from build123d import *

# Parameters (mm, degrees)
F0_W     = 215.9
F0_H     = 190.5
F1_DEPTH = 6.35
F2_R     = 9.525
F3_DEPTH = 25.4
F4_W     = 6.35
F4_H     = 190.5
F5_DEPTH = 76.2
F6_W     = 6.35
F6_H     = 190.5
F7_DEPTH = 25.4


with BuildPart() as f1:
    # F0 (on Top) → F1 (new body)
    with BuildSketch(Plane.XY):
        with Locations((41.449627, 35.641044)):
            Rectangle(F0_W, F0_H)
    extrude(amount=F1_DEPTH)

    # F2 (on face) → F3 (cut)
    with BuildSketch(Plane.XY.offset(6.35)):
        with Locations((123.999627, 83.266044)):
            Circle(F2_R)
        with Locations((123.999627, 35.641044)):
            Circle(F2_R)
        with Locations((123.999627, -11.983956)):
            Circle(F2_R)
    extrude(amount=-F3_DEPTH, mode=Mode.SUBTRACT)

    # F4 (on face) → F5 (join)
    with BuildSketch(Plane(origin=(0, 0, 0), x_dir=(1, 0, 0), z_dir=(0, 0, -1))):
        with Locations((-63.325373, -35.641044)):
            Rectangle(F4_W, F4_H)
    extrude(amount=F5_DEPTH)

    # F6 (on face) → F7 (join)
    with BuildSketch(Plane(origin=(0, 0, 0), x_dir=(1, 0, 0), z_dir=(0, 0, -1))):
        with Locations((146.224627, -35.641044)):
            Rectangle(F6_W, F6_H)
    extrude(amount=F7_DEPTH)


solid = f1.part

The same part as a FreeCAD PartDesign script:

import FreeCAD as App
import Part
import Sketcher

V = App.Vector
Q = App.Units.Quantity


def add_polygon(sketch, points):
    """Adds a closed chain of lines whose ends are joined by coincident constraints."""
    first, n = sketch.GeometryCount, len(points)
    for a, b in zip(points, points[1:] + points[:1]):
        sketch.addGeometry(Part.LineSegment(App.Vector(*a, 0), App.Vector(*b, 0)), False)
    for i in range(n):
        sketch.addConstraint(Sketcher.Constraint("Coincident", first + i, 2, first + (i + 1) % n, 1))

doc = App.newDocument("Part")
body = doc.addObject("PartDesign::Body", "Body")

sketch1 = body.newObject("Sketcher::SketchObject", "Sketch")
sketch1.AttachmentSupport = (doc.getObject("XY_Plane"), [""])
sketch1.MapMode = "FlatFace"
add_polygon(sketch1, [(-67, 131), (-67, -60), (149, -60), (149, 131)])
sketch1.addConstraint(Sketcher.Constraint("Vertical", 0))
sketch1.addConstraint(Sketcher.Constraint("Horizontal", 1))
sketch1.addConstraint(Sketcher.Constraint("Vertical", 2))
sketch1.addConstraint(Sketcher.Constraint("Horizontal", 3))
sketch1.addConstraint(Sketcher.Constraint("DistanceX", 1, 1, 1, 2, Q("8.5 in")))
sketch1.addConstraint(Sketcher.Constraint("DistanceY", 0, 2, 0, 1, Q("7.5 in")))
sketch1.addConstraint(Sketcher.Constraint("DistanceX", 0, 2, -1, 1, 66.500373))
sketch1.addConstraint(Sketcher.Constraint("DistanceY", 0, 2, -1, 1, 59.608956))
pad1 = body.newObject("PartDesign::Pad", "Pad")
pad1.Profile = sketch1
pad1.Length = Q("0.25 in")

sketch2 = body.newObject("Sketcher::SketchObject", "Sketch001")
sketch2.AttachmentSupport = (doc.getObject("XY_Plane"), [""])
sketch2.MapMode = "FlatFace"
sketch2.AttachmentOffset = App.Placement(V(0, 0, 0.25 * 25.4), App.Rotation())
sketch2.addGeometry(Part.Circle(V(124, 83, 0), V(0, 0, 1), 10), False)
sketch2.addGeometry(Part.Circle(V(124, 36, 0), V(0, 0, 1), 10), False)
sketch2.addGeometry(Part.Circle(V(124, -12, 0), V(0, 0, 1), 10), False)
sketch2.addConstraint(Sketcher.Constraint("Equal", 0, 1))
sketch2.addConstraint(Sketcher.Constraint("Equal", 1, 2))
sketch2.addConstraint(Sketcher.Constraint("Vertical", 0, 3, 1, 3))
sketch2.addConstraint(Sketcher.Constraint("Vertical", 1, 3, 2, 3))
sketch2.addConstraint(Sketcher.Constraint("Diameter", 0, Q("0.75 in")))
sketch2.addConstraint(Sketcher.Constraint("DistanceY", 2, 3, 0, 3, Q("3.75 in")))
sketch2.addConstraint(Sketcher.Constraint("DistanceY", 1, 3, 0, 3, Q("1.875 in")))
sketch2.addConstraint(Sketcher.Constraint("DistanceX", -1, 1, 0, 3, 123.999627))
sketch2.addConstraint(Sketcher.Constraint("DistanceY", -1, 1, 0, 3, 83.266044))
pocket1 = body.newObject("PartDesign::Pocket", "Pocket")
pocket1.Profile = sketch2
pocket1.Length = Q("1 in")

sketch3 = body.newObject("Sketcher::SketchObject", "Sketch002")
sketch3.AttachmentSupport = (doc.getObject("XY_Plane"), [""])
sketch3.MapMode = "FlatFace"
add_polygon(sketch3, [(-67, -60), (-67, 131), (-60, 131), (-60, -60)])
sketch3.addConstraint(Sketcher.Constraint("Vertical", 0))
sketch3.addConstraint(Sketcher.Constraint("Horizontal", 1))
sketch3.addConstraint(Sketcher.Constraint("Vertical", 2))
sketch3.addConstraint(Sketcher.Constraint("Horizontal", 3))
sketch3.addConstraint(Sketcher.Constraint("DistanceY", 0, 1, 0, 2, Q("7.5 in")))
sketch3.addConstraint(Sketcher.Constraint("DistanceX", 1, 1, 1, 2, Q("0.25 in")))
sketch3.addConstraint(Sketcher.Constraint("DistanceX", 0, 2, -1, 1, 66.500373))
sketch3.addConstraint(Sketcher.Constraint("DistanceY", -1, 1, 0, 2, 130.891044))
pad2 = body.newObject("PartDesign::Pad", "Pad001")
pad2.Profile = sketch3
pad2.Length = Q("3 in")
pad2.Reversed = True

sketch4 = body.newObject("Sketcher::SketchObject", "Sketch003")
sketch4.AttachmentSupport = (doc.getObject("XY_Plane"), [""])
sketch4.MapMode = "FlatFace"
add_polygon(sketch4, [(143, -60), (143, 131), (149, 131), (149, -60)])
sketch4.addConstraint(Sketcher.Constraint("Vertical", 0))
sketch4.addConstraint(Sketcher.Constraint("Horizontal", 1))
sketch4.addConstraint(Sketcher.Constraint("Vertical", 2))
sketch4.addConstraint(Sketcher.Constraint("Horizontal", 3))
sketch4.addConstraint(Sketcher.Constraint("DistanceY", 0, 1, 0, 2, Q("7.5 in")))
sketch4.addConstraint(Sketcher.Constraint("DistanceX", 1, 1, 1, 2, Q("0.25 in")))
sketch4.addConstraint(Sketcher.Constraint("DistanceX", -1, 1, 0, 2, 143.049627))
sketch4.addConstraint(Sketcher.Constraint("DistanceY", -1, 1, 0, 2, 130.891044))
pad3 = body.newObject("PartDesign::Pad", "Pad002")
pad3.Profile = sketch4
pad3.Length = Q("1 in")
pad3.Reversed = True

doc.recompute()
